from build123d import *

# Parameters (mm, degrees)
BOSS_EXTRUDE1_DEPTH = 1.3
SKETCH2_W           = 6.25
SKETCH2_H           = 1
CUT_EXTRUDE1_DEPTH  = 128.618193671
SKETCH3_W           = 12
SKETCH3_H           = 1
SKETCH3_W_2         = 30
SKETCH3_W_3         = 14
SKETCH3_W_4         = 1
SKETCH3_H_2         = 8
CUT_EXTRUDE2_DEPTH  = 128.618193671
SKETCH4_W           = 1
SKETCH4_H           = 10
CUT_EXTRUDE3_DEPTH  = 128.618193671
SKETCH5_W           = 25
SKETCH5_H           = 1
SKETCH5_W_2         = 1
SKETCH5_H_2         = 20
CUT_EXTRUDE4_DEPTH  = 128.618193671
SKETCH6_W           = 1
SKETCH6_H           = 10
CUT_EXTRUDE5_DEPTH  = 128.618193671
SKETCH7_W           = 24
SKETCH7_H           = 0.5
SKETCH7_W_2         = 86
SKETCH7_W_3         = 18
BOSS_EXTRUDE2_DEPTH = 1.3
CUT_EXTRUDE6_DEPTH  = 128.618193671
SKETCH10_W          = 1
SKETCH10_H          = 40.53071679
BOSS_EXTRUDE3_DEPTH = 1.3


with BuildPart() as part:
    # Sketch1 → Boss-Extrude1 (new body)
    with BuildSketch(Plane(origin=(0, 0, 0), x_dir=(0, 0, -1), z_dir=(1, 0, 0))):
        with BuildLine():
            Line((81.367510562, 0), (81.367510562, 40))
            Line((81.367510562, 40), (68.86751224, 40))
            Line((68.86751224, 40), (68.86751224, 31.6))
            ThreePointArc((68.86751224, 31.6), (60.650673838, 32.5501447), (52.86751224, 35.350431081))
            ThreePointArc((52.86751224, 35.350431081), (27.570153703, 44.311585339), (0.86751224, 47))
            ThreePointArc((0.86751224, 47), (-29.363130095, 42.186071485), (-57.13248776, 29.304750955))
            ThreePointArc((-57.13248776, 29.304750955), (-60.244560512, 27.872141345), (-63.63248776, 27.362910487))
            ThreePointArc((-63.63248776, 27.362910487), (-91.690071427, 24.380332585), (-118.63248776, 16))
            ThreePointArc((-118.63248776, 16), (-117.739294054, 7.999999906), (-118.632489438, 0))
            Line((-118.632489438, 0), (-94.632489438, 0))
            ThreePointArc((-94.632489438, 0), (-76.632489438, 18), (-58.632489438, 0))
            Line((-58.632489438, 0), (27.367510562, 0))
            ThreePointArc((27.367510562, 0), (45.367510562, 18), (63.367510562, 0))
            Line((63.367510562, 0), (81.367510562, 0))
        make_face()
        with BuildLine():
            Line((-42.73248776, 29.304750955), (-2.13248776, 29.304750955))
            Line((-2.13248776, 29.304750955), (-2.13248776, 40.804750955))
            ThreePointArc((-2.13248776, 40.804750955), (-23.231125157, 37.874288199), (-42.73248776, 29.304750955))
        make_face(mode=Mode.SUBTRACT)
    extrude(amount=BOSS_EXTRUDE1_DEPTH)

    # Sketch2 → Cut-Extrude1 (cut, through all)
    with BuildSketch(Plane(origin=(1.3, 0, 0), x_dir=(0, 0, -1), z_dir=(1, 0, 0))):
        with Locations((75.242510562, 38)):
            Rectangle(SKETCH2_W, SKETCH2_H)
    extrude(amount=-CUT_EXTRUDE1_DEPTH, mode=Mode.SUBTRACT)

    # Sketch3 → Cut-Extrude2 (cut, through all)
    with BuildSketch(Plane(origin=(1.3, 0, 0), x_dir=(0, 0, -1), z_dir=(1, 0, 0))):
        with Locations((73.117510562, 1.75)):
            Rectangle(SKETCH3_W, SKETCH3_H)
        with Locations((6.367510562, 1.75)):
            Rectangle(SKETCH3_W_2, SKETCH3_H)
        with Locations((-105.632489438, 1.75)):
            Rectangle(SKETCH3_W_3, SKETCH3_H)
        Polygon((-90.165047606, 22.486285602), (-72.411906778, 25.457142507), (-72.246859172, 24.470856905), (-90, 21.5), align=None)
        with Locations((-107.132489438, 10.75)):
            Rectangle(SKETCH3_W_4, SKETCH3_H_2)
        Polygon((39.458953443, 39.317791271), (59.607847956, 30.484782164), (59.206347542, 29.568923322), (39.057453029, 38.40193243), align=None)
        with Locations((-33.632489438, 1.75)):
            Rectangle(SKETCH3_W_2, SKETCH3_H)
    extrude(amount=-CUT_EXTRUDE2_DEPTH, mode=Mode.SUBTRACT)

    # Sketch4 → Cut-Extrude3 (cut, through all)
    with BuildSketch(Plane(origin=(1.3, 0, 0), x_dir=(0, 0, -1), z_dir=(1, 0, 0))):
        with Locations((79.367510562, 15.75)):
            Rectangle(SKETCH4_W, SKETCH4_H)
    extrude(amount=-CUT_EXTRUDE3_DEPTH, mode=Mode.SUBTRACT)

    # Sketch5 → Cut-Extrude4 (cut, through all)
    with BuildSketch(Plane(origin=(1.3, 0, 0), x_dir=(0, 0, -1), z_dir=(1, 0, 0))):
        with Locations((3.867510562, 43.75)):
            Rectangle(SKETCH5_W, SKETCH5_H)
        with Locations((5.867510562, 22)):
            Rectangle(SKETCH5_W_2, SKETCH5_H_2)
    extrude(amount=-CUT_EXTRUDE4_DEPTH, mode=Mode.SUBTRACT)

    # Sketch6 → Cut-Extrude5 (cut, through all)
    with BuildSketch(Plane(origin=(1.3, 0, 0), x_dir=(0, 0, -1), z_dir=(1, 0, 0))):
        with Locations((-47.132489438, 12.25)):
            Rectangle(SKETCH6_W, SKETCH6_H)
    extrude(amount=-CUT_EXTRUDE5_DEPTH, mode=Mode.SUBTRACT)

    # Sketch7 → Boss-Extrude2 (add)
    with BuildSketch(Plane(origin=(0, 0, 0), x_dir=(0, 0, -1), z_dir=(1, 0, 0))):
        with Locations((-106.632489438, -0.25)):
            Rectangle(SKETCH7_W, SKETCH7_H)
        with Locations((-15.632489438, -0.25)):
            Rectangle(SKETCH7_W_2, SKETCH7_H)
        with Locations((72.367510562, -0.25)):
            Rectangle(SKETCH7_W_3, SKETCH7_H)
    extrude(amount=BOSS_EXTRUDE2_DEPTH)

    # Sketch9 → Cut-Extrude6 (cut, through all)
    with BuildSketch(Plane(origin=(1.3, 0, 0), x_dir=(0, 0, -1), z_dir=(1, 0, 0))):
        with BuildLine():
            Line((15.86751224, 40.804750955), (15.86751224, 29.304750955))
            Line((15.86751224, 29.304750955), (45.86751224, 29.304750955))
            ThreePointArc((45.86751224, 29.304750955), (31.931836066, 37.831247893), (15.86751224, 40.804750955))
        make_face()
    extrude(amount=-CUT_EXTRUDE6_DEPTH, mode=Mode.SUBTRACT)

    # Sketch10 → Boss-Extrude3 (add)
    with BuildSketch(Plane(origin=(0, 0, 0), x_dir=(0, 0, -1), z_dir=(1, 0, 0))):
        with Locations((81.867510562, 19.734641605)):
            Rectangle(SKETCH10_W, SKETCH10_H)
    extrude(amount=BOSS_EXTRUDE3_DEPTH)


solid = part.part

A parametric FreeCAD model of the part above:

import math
import FreeCAD as App
import Part
import Sketcher

V = App.Vector
Q = App.Units.Quantity


def add_polygon(sketch, points):
    """Adds a closed chain of lines whose ends are joined by coincident constraints."""
    first, n = sketch.GeometryCount, len(points)
    for a, b in zip(points, points[1:] + points[:1]):
        sketch.addGeometry(Part.LineSegment(App.Vector(*a, 0), App.Vector(*b, 0)), False)
    for i in range(n):
        sketch.addConstraint(Sketcher.Constraint("Coincident", first + i, 2, first + (i + 1) % n, 1))

doc = App.newDocument("Part")
body = doc.addObject("PartDesign::Body", "Body")

sketch1 = body.newObject("Sketcher::SketchObject", "Sketch")
sketch1.AttachmentSupport = (doc.getObject("YZ_Plane"), [""])
sketch1.MapMode = "FlatFace"
sketch1.addGeometry([
    Part.LineSegment(V(0, -81, 0), V(40, -81, 0)),
    Part.LineSegment(V(40, -81, 0), V(40, -69, 0)),
    Part.LineSegment(V(40, -69, 0), V(32, -69, 0)),
    Part.ArcOfCircle(Part.Circle(V(68, -69, 0), V(0, 0, 1), 36), math.radians(154), math.radians(180)),
    Part.ArcOfCircle(Part.Circle(V(-65, -3, 0), V(0, 0, 1), 112), math.radians(-26), math.radians(1)),
    Part.ArcOfCircle(Part.Circle(V(-64, -3, 0), V(0, 0, 1), 111), math.radians(1), math.radians(33)),
    Part.ArcOfCircle(Part.Circle(V(40, 64, 0), V(0, 0, 1), 12), math.radians(-180), math.radians(-147)),
    Part.ArcOfCircle(Part.Circle(V(-117, 62, 0), V(0, 0, 1), 144), math.radians(0), math.radians(23)),
    Part.ArcOfCircle(Part.Circle(V(8, 154, 0), V(0, 0, 1), 36), math.radians(-103), math.radians(-77)),
    Part.LineSegment(V(0, 119, 0), V(0, 95, 0)),
    Part.ArcOfCircle(Part.Circle(V(0, 77, 0), V(0, 0, 1), 18), math.radians(-90), math.radians(90)),
    Part.LineSegment(V(0, 59, 0), V(0, -27, 0)),
    Part.ArcOfCircle(Part.Circle(V(0, -45, 0), V(0, 0, 1), 18), math.radians(-90), math.radians(90)),
    Part.LineSegment(V(0, -63, 0), V(0, -81, 0)),
    Part.LineSegment(V(29, 2, 0), V(29, 43, 0)),
    Part.ArcOfCircle(Part.Circle(V(-37, 2, 0), V(0, 0, 1), 77), math.radians(0), math.radians(32)),
    Part.LineSegment(V(41, 2, 0), V(29, 2, 0)),
], False)
sketch1.addConstraint([
    Sketcher.Constraint("Coincident", 0, 2, 1, 1),
    Sketcher.Constraint("Coincident", 1, 2, 2, 1),
    Sketcher.Constraint("Coincident", 2, 2, 3, 2),
    Sketcher.Constraint("Tangent", 3, 1, 4, 1),
    Sketcher.Constraint("Tangent", 4, 2, 5, 1),
    Sketcher.Constraint("Tangent", 5, 2, 6, 2),
    Sketcher.Constraint("Tangent", 6, 1, 7, 1),
    Sketcher.Constraint("Coincident", 7, 2, 8, 2),
    Sketcher.Constraint("Coincident", 8, 1, 9, 1),
    Sketcher.Constraint("Coincident", 9, 2, 10, 2),
    Sketcher.Constraint("Coincident", 10, 1, 11, 1),
    Sketcher.Constraint("Coincident", 11, 2, 12, 2),
    Sketcher.Constraint("Coincident", 12, 1, 13, 1),
    Sketcher.Constraint("Coincident", 13, 2, 0, 1),
    Sketcher.Constraint("Coincident", 14, 2, 15, 2),
    Sketcher.Constraint("Coincident", 15, 1, 16, 1),
    Sketcher.Constraint("Coincident", 16, 2, 14, 1),
    Sketcher.Constraint("Horizontal", 0),
    Sketcher.Constraint("Vertical", 1),
    Sketcher.Constraint("Horizontal", 2),
    Sketcher.Constraint("Vertical", 9),
    Sketcher.Constraint("Vertical", 11),
    Sketcher.Constraint("Vertical", 13),
    Sketcher.Constraint("Vertical", 14),
    Sketcher.Constraint("Horizontal", 16),
    Sketcher.Constraint("Equal", 10, 12),
    Sketcher.Constraint("PointOnObject", 10, 3, -2),
    Sketcher.Constraint("PointOnObject", 12, 3, -2),
    Sketcher.Constraint("PointOnObject", 8, 1, -2),
    Sketcher.Constraint("PointOnObject", 10, 1, -2),
    Sketcher.Constraint("PointOnObject", 12, 1, -2),
    Sketcher.Constraint("Horizontal", 3, 3, 1, 2),
    Sketcher.Constraint("Horizontal", 7, 2, 8, 1),
    Sketcher.Constraint("Vertical", 5, 2, 14, 2),
    Sketcher.Constraint("Radius", 10, 18.0),
    Sketcher.Constraint("DistanceX", 0, 1, 0, 2, 40.0),
    Sketcher.Constraint("DistanceY", 9, 2, 9, 1, 24.0),
    Sketcher.Constraint("DistanceY", 11, 2, 11, 1, 86.0),
    Sketcher.Constraint("DistanceY", 13, 2, 13, 1, 18.0),
    Sketcher.Constraint("DistanceX", 2, 2, 2, 1, 8.4),
    Sketcher.Constraint("DistanceX", 16, 2, 16, 1, 11.5),
    Sketcher.Constraint("DistanceY", 1, 1, 1, 2, 12.499998),
    Sketcher.Constraint("DistanceY", 14, 1, 14, 2, 40.6),
    Sketcher.Constraint("DistanceX", -1, 1, 4, 2, 47.0),
    Sketcher.Constraint("DistanceX", -1, 1, 7, 2, 16.0),
    Sketcher.Constraint("DistanceY", 1, 2, 15, 3, 71.0),
    Sketcher.Constraint("DistanceY", 2, 2, 3, 1, 16.0),
    Sketcher.Constraint("DistanceY", 3, 1, 4, 2, 52.0),
    Sketcher.Constraint("DistanceY", 4, 2, 5, 2, 58.0),
    Sketcher.Constraint("DistanceY", 6, 1, 10, 3, 13.000002),
    Sketcher.Constraint("DistanceY", 3, 1, 15, 1, 55.0),
    Sketcher.Constraint("Radius", 6, 12.179441),
    Sketcher.Constraint("Radius", 7, 144.441279),
    Sketcher.Constraint("Radius", 8, 36.273059),
    Sketcher.Constraint("Radius", 3, 36.004626),
    Sketcher.Constraint("DistanceY", 4, 3, -1, 1, 3.075571),
])
pad1 = body.newObject("PartDesign::Pad", "Pad")
pad1.Profile = sketch1
pad1.Length = 1.3

sketch2 = body.newObject("Sketcher::SketchObject", "Sketch001")
sketch2.AttachmentSupport = (doc.getObject("YZ_Plane"), [""])
sketch2.MapMode = "FlatFace"
sketch2.AttachmentOffset = App.Placement(V(0, 0, 1.3), App.Rotation())
add_polygon(sketch2, [(38.5, -72.1), (37.5, -72.1), (37.5, -78.4), (38.5, -78.4)])
sketch2.addConstraint([
    Sketcher.Constraint("Horizontal", 0),
    Sketcher.Constraint("Vertical", 1),
    Sketcher.Constraint("Horizontal", 2),
    Sketcher.Constraint("Vertical", 3),
    Sketcher.Constraint("DistanceX", 0, 2, 0, 1, 1.0),
    Sketcher.Constraint("DistanceY", 1, 2, 1, 1, 6.25),
    Sketcher.Constraint("DistanceX", -1, 1, 0, 2, 37.5),
    Sketcher.Constraint("DistanceY", 0, 2, -1, 1, 72.117511),
])
pocket1 = body.newObject("PartDesign::Pocket", "Pocket")
pocket1.Profile = sketch2
pocket1.Type = "ThroughAll"

sketch3 = body.newObject("Sketcher::SketchObject", "Sketch002")
sketch3.AttachmentSupport = (doc.getObject("YZ_Plane"), [""])
sketch3.MapMode = "FlatFace"
sketch3.AttachmentOffset = App.Placement(V(0, 0, 1.3), App.Rotation())
add_polygon(sketch3, [(2.2, -67.1), (1.2, -67.1), (1.2, -79.1), (2.2, -79.1)])
add_polygon(sketch3, [(2.2, 8.6), (1.2, 8.6), (1.2, -21.4), (2.2, -21.4)])
add_polygon(sketch3, [(2.2, 112.6), (1.2, 112.6), (1.2, 98.6), (2.2, 98.6)])
add_polygon(sketch3, [(25.5, 72.4), (22.5, 90.2), (21.5, 90), (24.5, 72.2)])
add_polygon(sketch3, [(14.8, 107.6), (6.8, 107.6), (6.8, 106.6), (14.8, 106.6)])
add_polygon(sketch3, [(30.5, -59.6), (39.3, -39.5), (38.4, -39.1), (29.6, -59.2)])
add_polygon(sketch3, [(2.2, 48.6), (1.2, 48.6), (1.2, 18.6), (2.2, 18.6)])
sketch3.addConstraint([
    Sketcher.Constraint("Horizontal", 0),
    Sketcher.Constraint("Vertical", 1),
    Sketcher.Constraint("Horizontal", 2),
    Sketcher.Constraint("Vertical", 3),
    Sketcher.Constraint("Horizontal", 4),
    Sketcher.Constraint("Vertical", 5),
    Sketcher.Constraint("Horizontal", 6),
    Sketcher.Constraint("Vertical", 7),
    Sketcher.Constraint("Horizontal", 8),
    Sketcher.Constraint("Vertical", 9),
    Sketcher.Constraint("Horizontal", 10),
    Sketcher.Constraint("Vertical", 11),
    Sketcher.Constraint("Horizontal", 16),
    Sketcher.Constraint("Vertical", 17),
    Sketcher.Constraint("Horizontal", 18),
    Sketcher.Constraint("Vertical", 19),
    Sketcher.Constraint("Horizontal", 24),
    Sketcher.Constraint("Vertical", 25),
    Sketcher.Constraint("Horizontal", 26),
    Sketcher.Constraint("Vertical", 27),
    Sketcher.Constraint("Perpendicular", 12, 13),
    Sketcher.Constraint("Perpendicular", 13, 14),
    Sketcher.Constraint("Perpendicular", 14, 15),
    Sketcher.Constraint("Perpendicular", 20, 21),
    Sketcher.Constraint("Perpendicular", 21, 22),
    Sketcher.Constraint("Perpendicular", 22, 23),
    Sketcher.Constraint("Vertical", 1, 2, 4, 2),
    Sketcher.Constraint("Vertical", 3, 2, 6, 2),
    Sketcher.Constraint("Vertical", 5, 2, 8, 2),
    Sketcher.Constraint("Vertical", 7, 2, 10, 2),
    Sketcher.Constraint("Vertical", 9, 2, 24, 2),
    Sketcher.Constraint("Vertical", 11, 2, 26, 2),
    Sketcher.Constraint("Equal", 26, 17),
    Sketcher.Constraint("Equal", 7, 25),
    Sketcher.Constraint("Equal", 15, 21),
    Sketcher.Constraint("DistanceX", 0, 2, 0, 1, 1.0),
    Sketcher.Constraint("DistanceX", 16, 2, 16, 1, 8.0),
    Sketcher.Constraint("DistanceY", 1, 2, 1, 1, 12.0),
    Sketcher.Constraint("DistanceY", 5, 2, 5, 1, 30.0),
    Sketcher.Constraint("DistanceY", 9, 2, 9, 1, 14.0),
    Sketcher.Constraint("Distance", 12, 18.0),
    Sketcher.Constraint("Distance", 13, 1.0),
    Sketcher.Constraint("Distance", 20, 22.0),
    Sketcher.Constraint("DistanceY", -1, 1, 13, 2, 90.0),
    Sketcher.Constraint("Angle", 12, Q("99.5 deg")),
    Sketcher.Constraint("DistanceY", 4, 2, 8, 2, 104.0),
    Sketcher.Constraint("DistanceY", 16, 2, 11, 2, 5.0),
    Sketcher.Constraint("DistanceY", 4, 2, 24, 2, 40.0),
    Sketcher.Constraint("DistanceX", -1, 1, 13, 2, 21.5),
    Sketcher.Constraint("DistanceX", 11, 2, 16, 2, 4.5),
    Sketcher.Constraint("DistanceX", -1, 1, 0, 2, 1.25),
    Sketcher.Constraint("DistanceY", 0, 2, 4, 2, 75.75),
    Sketcher.Constraint("DistanceY", 20, 2, 21, 2, 0.4015),
    Sketcher.Constraint("DistanceY", 0, 2, -1, 1, 67.117511),
    Sketcher.Constraint("DistanceX", -1, 1, 20, 2, 39.317791),
    Sketcher.Constraint("DistanceY", 20, 2, -1, 1, 39.458953),
])
pocket2 = body.newObject("PartDesign::Pocket", "Pocket001")
pocket2.Profile = sketch3
pocket2.Type = "ThroughAll"

sketch4 = body.newObject("Sketcher::SketchObject", "Sketch003")
sketch4.AttachmentSupport = (doc.getObject("YZ_Plane"), [""])
sketch4.MapMode = "FlatFace"
sketch4.AttachmentOffset = App.Placement(V(0, 0, 1.3), App.Rotation())
add_polygon(sketch4, [(20.8, -78.9), (10.8, -78.9), (10.8, -79.9), (20.8, -79.9)])
sketch4.addConstraint([
    Sketcher.Constraint("Horizontal", 0),
    Sketcher.Constraint("Vertical", 1),
    Sketcher.Constraint("Horizontal", 2),
    Sketcher.Constraint("Vertical", 3),
    Sketcher.Constraint("DistanceX", 0, 2, 0, 1, 10.0),
    Sketcher.Constraint("DistanceY", 1, 2, 1, 1, 1.0),
    Sketcher.Constraint("DistanceX", -1, 1, 0, 2, 10.75),
    Sketcher.Constraint("DistanceY", 0, 2, -1, 1, 78.867511),
])
pocket3 = body.newObject("PartDesign::Pocket", "Pocket002")
pocket3.Profile = sketch4
pocket3.Type = "ThroughAll"

sketch5 = body.newObject("Sketcher::SketchObject", "Sketch004")
sketch5.AttachmentSupport = (doc.getObject("YZ_Plane"), [""])
sketch5.MapMode = "FlatFace"
sketch5.AttachmentOffset = App.Placement(V(0, 0, 1.3), App.Rotation())
add_polygon(sketch5, [(44.2, 8.6), (43.2, 8.6), (43.2, -16.4), (44.2, -16.4)])
add_polygon(sketch5, [(32, -5.4), (12, -5.4), (12, -6.4), (32, -6.4)])
sketch5.addConstraint([
    Sketcher.Constraint("Horizontal", 0),
    Sketcher.Constraint("Vertical", 1),
    Sketcher.Constraint("Horizontal", 2),
    Sketcher.Constraint("Vertical", 3),
    Sketcher.Constraint("Horizontal", 4),
    Sketcher.Constraint("Vertical", 5),
    Sketcher.Constraint("Horizontal", 6),
    Sketcher.Constraint("Vertical", 7),
    Sketcher.Constraint("Equal", 2, 5),
    Sketcher.Constraint("DistanceX", 0, 2, 0, 1, 1.0),
    Sketcher.Constraint("DistanceX", 4, 2, 4, 1, 20.0),
    Sketcher.Constraint("DistanceY", 1, 2, 1, 1, 25.0),
    Sketcher.Constraint("DistanceX", -1, 1, 4, 2, 12.0),
    Sketcher.Constraint("DistanceY", 1, 2, 4, 2, 11.0),
    Sketcher.Constraint("DistanceX", -1, 1, 0, 2, 43.25),
    Sketcher.Constraint("DistanceY", -1, 1, 0, 2, 8.632489),
])
pocket4 = body.newObject("PartDesign::Pocket", "Pocket003")
pocket4.Profile = sketch5
pocket4.Type = "ThroughAll"

sketch6 = body.newObject("Sketcher::SketchObject", "Sketch005")
sketch6.AttachmentSupport = (doc.getObject("YZ_Plane"), [""])
sketch6.MapMode = "FlatFace"
sketch6.AttachmentOffset = App.Placement(V(0, 0, 1.3), App.Rotation())
add_polygon(sketch6, [(17.2, 47.6), (7.2, 47.6), (7.2, 46.6), (17.2, 46.6)])
sketch6.addConstraint([
    Sketcher.Constraint("Horizontal", 0),
    Sketcher.Constraint("Vertical", 1),
    Sketcher.Constraint("Horizontal", 2),
    Sketcher.Constraint("Vertical", 3),
    Sketcher.Constraint("DistanceX", 0, 2, 0, 1, 10.0),
    Sketcher.Constraint("DistanceY", 1, 2, 1, 1, 1.0),
    Sketcher.Constraint("DistanceX", -1, 1, 0, 2, 7.25),
    Sketcher.Constraint("DistanceY", -1, 1, 0, 2, 47.632489),
])
pocket5 = body.newObject("PartDesign::Pocket", "Pocket004")
pocket5.Profile = sketch6
pocket5.Type = "ThroughAll"

sketch7 = body.newObject("Sketcher::SketchObject", "Sketch006")
sketch7.AttachmentSupport = (doc.getObject("YZ_Plane"), [""])
sketch7.MapMode = "FlatFace"
add_polygon(sketch7, [(0, 118.6), (-0.5, 118.6), (-0.5, 94.6), (0, 94.6)])
add_polygon(sketch7, [(0, 58.6), (-0.5, 58.6), (-0.5, -27.4), (0, -27.4)])
add_polygon(sketch7, [(0, -63.4), (-0.5, -63.4), (-0.5, -81.4), (0, -81.4)])
sketch7.addConstraint([
    Sketcher.Constraint("Horizontal", 0),
    Sketcher.Constraint("Vertical", 1),
    Sketcher.Constraint("Horizontal", 2),
    Sketcher.Constraint("Vertical", 3),
    Sketcher.Constraint("Horizontal", 4),
    Sketcher.Constraint("Vertical", 5),
    Sketcher.Constraint("Horizontal", 6),
    Sketcher.Constraint("Vertical", 7),
    Sketcher.Constraint("Horizontal", 8),
    Sketcher.Constraint("Vertical", 9),
    Sketcher.Constraint("Horizontal", 10),
    Sketcher.Constraint("Vertical", 11),
    Sketcher.Constraint("PointOnObject", 2, 2, -2),
    Sketcher.Constraint("PointOnObject", 6, 2, -2),
    Sketcher.Constraint("PointOnObject", 10, 2, -2),
    Sketcher.Constraint("Vertical", 1, 2, 4, 2),
    Sketcher.Constraint("Vertical", 5, 2, 8, 2),
    Sketcher.Constraint("DistanceY", 1, 2, 1, 1, 24.0),
    Sketcher.Constraint("DistanceY", 5, 2, 5, 1, 86.0),
    Sketcher.Constraint("DistanceY", 9, 2, 9, 1, 18.0),
    Sketcher.Constraint("DistanceX", 0, 2, 0, 1, 0.5),
    Sketcher.Constraint("DistanceY", 4, 2, 1, 2, 36.0),
    Sketcher.Constraint("DistanceY", 8, 2, 5, 2, 36.0),
    Sketcher.Constraint("DistanceY", -1, 1, 0, 2, 118.632489),
])
pad2 = body.newObject("PartDesign::Pad", "Pad001")
pad2.Profile = sketch7
pad2.Length = 1.3

sketch8 = body.newObject("Sketcher::SketchObject", "Sketch007")
sketch8.AttachmentSupport = (doc.getObject("YZ_Plane"), [""])
sketch8.MapMode = "FlatFace"
sketch8.AttachmentOffset = App.Placement(V(0, 0, 1.3), App.Rotation())
sketch8.addGeometry([
    Part.LineSegment(V(41, -16, 0), V(29, -16, 0)),
    Part.LineSegment(V(29, -16, 0), V(29, -46, 0)),
    Part.ArcOfCircle(Part.Circle(V(-4, -16, 0), V(0, 0, 1), 45), math.radians(-42), math.radians(0)),
], False)
sketch8.addConstraint([
    Sketcher.Constraint("Coincident", 0, 2, 1, 1),
    Sketcher.Constraint("Coincident", 1, 2, 2, 1),
    Sketcher.Constraint("Coincident", 2, 2, 0, 1),
    Sketcher.Constraint("Horizontal", 0),
    Sketcher.Constraint("Vertical", 1),
    Sketcher.Constraint("Horizontal", 2, 3, 0, 2),
    Sketcher.Constraint("DistanceY", 1, 2, 1, 1, 30.0),
    Sketcher.Constraint("DistanceX", 0, 2, 0, 1, 11.5),
    Sketcher.Constraint("DistanceX", -1, 1, 0, 2, 29.304751),
    Sketcher.Constraint("DistanceY", 2, 3, -1, 1, 15.867512),
])
pocket6 = body.newObject("PartDesign::Pocket", "Pocket005")
pocket6.Profile = sketch8
pocket6.Type = "ThroughAll"

sketch9 = body.newObject("Sketcher::SketchObject", "Sketch008")
sketch9.AttachmentSupport = (doc.getObject("YZ_Plane"), [""])
sketch9.MapMode = "FlatFace"
add_polygon(sketch9, [(40, -81.4), (-0.5, -81.4), (-0.5, -82.4), (40, -82.4)])
sketch9.addConstraint([
    Sketcher.Constraint("Horizontal", 0),
    Sketcher.Constraint("Vertical", 1),
    Sketcher.Constraint("Horizontal", 2),
    Sketcher.Constraint("Vertical", 3),
    Sketcher.Constraint("DistanceY", 1, 2, 1, 1, 1.0),
    Sketcher.Constraint("DistanceX", -1, 1, 2, 2, 40.0),
    Sketcher.Constraint("DistanceX", 0, 2, 0, 1, 40.530717),
    Sketcher.Constraint("DistanceY", 0, 2, -1, 1, 81.367511),
])
pad3 = body.newObject("PartDesign::Pad", "Pad002")
pad3.Profile = sketch9
pad3.Length = 1.3

doc.recompute()
